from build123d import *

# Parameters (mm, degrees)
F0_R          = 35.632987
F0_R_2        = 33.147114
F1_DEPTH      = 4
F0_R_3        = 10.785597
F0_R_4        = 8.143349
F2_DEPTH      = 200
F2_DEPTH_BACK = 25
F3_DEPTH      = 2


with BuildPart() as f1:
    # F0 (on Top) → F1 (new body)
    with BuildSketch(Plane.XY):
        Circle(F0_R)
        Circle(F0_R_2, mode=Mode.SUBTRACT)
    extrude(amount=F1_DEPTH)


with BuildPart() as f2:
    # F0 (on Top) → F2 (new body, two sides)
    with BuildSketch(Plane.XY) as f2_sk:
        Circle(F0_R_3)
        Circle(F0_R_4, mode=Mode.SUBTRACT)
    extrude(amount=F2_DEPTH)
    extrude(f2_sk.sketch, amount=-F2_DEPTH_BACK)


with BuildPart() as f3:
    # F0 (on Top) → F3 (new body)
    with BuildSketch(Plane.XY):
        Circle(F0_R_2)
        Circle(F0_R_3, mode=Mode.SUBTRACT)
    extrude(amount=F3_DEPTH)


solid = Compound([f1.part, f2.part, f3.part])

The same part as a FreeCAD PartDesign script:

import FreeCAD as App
import Part
import Sketcher

doc = App.newDocument("Part")
body = doc.addObject("PartDesign::Body", "Body")

# Sketch on XY plane
sketch1 = body.newObject("Sketcher::SketchObject", "Sketch")
sketch1.AttachmentSupport = (doc.getObject("XY_Plane"), [""])
sketch1.MapMode = "FlatFace"
sketch1.addGeometry([
    Part.Circle(App.Vector(0, 0, 0), App.Vector(0, 0, 1), 36),
    Part.Circle(App.Vector(0, 0, 0), App.Vector(0, 0, 1), 33),
], False)
sketch1.addConstraint([
    Sketcher.Constraint("Coincident", 0, 3, -1, 1),
    Sketcher.Constraint("Coincident", 1, 3, -1, 1),
    Sketcher.Constraint("Diameter", 1, 66.294228),
    Sketcher.Constraint("Diameter", 0, 71.265974),
])
pad1 = body.newObject("PartDesign::Pad", "Pad")
pad1.Profile = sketch1
pad1.Length = 4
body2 = doc.addObject("PartDesign::Body", "Body001")

# Sketch on XY plane
sketch2 = body2.newObject("Sketcher::SketchObject", "Sketch001")
sketch2.AttachmentSupport = (doc.getObject("XY_Plane001"), [""])
sketch2.MapMode = "FlatFace"
sketch2.addGeometry([
    Part.Circle(App.Vector(0, 0, 0), App.Vector(0, 0, 1), 11),
    Part.Circle(App.Vector(0, 0, 0), App.Vector(0, 0, 1), 8),
], False)
sketch2.addConstraint([
    Sketcher.Constraint("Coincident", 0, 3, -1, 1),
    Sketcher.Constraint("Coincident", 1, 3, -1, 1),
    Sketcher.Constraint("Diameter", 1, 16.286698),
    Sketcher.Constraint("Diameter", 0, 21.571194),
])
pad2 = body2.newObject("PartDesign::Pad", "Pad001")
pad2.Profile = sketch2
pad2.Type = "TwoLengths"
pad2.Length = 200
pad2.Length2 = 25
body3 = doc.addObject("PartDesign::Body", "Body002")

# Sketch on XY plane
sketch3 = body3.newObject("Sketcher::SketchObject", "Sketch002")
sketch3.AttachmentSupport = (doc.getObject("XY_Plane002"), [""])
sketch3.MapMode = "FlatFace"
sketch3.addGeometry([
    Part.Circle(App.Vector(0, 0, 0), App.Vector(0, 0, 1), 33),
    Part.Circle(App.Vector(0, 0, 0), App.Vector(0, 0, 1), 11),
], False)
sketch3.addConstraint([
    Sketcher.Constraint("Coincident", 0, 3, -1, 1),
    Sketcher.Constraint("Coincident", 1, 3, -1, 1),
    Sketcher.Constraint("Diameter", 0, 66.294228),
    Sketcher.Constraint("Diameter", 1, 21.571194),
])
pad3 = body3.newObject("PartDesign::Pad", "Pad002")
pad3.Profile = sketch3
pad3.Length = 2

doc.recompute()
